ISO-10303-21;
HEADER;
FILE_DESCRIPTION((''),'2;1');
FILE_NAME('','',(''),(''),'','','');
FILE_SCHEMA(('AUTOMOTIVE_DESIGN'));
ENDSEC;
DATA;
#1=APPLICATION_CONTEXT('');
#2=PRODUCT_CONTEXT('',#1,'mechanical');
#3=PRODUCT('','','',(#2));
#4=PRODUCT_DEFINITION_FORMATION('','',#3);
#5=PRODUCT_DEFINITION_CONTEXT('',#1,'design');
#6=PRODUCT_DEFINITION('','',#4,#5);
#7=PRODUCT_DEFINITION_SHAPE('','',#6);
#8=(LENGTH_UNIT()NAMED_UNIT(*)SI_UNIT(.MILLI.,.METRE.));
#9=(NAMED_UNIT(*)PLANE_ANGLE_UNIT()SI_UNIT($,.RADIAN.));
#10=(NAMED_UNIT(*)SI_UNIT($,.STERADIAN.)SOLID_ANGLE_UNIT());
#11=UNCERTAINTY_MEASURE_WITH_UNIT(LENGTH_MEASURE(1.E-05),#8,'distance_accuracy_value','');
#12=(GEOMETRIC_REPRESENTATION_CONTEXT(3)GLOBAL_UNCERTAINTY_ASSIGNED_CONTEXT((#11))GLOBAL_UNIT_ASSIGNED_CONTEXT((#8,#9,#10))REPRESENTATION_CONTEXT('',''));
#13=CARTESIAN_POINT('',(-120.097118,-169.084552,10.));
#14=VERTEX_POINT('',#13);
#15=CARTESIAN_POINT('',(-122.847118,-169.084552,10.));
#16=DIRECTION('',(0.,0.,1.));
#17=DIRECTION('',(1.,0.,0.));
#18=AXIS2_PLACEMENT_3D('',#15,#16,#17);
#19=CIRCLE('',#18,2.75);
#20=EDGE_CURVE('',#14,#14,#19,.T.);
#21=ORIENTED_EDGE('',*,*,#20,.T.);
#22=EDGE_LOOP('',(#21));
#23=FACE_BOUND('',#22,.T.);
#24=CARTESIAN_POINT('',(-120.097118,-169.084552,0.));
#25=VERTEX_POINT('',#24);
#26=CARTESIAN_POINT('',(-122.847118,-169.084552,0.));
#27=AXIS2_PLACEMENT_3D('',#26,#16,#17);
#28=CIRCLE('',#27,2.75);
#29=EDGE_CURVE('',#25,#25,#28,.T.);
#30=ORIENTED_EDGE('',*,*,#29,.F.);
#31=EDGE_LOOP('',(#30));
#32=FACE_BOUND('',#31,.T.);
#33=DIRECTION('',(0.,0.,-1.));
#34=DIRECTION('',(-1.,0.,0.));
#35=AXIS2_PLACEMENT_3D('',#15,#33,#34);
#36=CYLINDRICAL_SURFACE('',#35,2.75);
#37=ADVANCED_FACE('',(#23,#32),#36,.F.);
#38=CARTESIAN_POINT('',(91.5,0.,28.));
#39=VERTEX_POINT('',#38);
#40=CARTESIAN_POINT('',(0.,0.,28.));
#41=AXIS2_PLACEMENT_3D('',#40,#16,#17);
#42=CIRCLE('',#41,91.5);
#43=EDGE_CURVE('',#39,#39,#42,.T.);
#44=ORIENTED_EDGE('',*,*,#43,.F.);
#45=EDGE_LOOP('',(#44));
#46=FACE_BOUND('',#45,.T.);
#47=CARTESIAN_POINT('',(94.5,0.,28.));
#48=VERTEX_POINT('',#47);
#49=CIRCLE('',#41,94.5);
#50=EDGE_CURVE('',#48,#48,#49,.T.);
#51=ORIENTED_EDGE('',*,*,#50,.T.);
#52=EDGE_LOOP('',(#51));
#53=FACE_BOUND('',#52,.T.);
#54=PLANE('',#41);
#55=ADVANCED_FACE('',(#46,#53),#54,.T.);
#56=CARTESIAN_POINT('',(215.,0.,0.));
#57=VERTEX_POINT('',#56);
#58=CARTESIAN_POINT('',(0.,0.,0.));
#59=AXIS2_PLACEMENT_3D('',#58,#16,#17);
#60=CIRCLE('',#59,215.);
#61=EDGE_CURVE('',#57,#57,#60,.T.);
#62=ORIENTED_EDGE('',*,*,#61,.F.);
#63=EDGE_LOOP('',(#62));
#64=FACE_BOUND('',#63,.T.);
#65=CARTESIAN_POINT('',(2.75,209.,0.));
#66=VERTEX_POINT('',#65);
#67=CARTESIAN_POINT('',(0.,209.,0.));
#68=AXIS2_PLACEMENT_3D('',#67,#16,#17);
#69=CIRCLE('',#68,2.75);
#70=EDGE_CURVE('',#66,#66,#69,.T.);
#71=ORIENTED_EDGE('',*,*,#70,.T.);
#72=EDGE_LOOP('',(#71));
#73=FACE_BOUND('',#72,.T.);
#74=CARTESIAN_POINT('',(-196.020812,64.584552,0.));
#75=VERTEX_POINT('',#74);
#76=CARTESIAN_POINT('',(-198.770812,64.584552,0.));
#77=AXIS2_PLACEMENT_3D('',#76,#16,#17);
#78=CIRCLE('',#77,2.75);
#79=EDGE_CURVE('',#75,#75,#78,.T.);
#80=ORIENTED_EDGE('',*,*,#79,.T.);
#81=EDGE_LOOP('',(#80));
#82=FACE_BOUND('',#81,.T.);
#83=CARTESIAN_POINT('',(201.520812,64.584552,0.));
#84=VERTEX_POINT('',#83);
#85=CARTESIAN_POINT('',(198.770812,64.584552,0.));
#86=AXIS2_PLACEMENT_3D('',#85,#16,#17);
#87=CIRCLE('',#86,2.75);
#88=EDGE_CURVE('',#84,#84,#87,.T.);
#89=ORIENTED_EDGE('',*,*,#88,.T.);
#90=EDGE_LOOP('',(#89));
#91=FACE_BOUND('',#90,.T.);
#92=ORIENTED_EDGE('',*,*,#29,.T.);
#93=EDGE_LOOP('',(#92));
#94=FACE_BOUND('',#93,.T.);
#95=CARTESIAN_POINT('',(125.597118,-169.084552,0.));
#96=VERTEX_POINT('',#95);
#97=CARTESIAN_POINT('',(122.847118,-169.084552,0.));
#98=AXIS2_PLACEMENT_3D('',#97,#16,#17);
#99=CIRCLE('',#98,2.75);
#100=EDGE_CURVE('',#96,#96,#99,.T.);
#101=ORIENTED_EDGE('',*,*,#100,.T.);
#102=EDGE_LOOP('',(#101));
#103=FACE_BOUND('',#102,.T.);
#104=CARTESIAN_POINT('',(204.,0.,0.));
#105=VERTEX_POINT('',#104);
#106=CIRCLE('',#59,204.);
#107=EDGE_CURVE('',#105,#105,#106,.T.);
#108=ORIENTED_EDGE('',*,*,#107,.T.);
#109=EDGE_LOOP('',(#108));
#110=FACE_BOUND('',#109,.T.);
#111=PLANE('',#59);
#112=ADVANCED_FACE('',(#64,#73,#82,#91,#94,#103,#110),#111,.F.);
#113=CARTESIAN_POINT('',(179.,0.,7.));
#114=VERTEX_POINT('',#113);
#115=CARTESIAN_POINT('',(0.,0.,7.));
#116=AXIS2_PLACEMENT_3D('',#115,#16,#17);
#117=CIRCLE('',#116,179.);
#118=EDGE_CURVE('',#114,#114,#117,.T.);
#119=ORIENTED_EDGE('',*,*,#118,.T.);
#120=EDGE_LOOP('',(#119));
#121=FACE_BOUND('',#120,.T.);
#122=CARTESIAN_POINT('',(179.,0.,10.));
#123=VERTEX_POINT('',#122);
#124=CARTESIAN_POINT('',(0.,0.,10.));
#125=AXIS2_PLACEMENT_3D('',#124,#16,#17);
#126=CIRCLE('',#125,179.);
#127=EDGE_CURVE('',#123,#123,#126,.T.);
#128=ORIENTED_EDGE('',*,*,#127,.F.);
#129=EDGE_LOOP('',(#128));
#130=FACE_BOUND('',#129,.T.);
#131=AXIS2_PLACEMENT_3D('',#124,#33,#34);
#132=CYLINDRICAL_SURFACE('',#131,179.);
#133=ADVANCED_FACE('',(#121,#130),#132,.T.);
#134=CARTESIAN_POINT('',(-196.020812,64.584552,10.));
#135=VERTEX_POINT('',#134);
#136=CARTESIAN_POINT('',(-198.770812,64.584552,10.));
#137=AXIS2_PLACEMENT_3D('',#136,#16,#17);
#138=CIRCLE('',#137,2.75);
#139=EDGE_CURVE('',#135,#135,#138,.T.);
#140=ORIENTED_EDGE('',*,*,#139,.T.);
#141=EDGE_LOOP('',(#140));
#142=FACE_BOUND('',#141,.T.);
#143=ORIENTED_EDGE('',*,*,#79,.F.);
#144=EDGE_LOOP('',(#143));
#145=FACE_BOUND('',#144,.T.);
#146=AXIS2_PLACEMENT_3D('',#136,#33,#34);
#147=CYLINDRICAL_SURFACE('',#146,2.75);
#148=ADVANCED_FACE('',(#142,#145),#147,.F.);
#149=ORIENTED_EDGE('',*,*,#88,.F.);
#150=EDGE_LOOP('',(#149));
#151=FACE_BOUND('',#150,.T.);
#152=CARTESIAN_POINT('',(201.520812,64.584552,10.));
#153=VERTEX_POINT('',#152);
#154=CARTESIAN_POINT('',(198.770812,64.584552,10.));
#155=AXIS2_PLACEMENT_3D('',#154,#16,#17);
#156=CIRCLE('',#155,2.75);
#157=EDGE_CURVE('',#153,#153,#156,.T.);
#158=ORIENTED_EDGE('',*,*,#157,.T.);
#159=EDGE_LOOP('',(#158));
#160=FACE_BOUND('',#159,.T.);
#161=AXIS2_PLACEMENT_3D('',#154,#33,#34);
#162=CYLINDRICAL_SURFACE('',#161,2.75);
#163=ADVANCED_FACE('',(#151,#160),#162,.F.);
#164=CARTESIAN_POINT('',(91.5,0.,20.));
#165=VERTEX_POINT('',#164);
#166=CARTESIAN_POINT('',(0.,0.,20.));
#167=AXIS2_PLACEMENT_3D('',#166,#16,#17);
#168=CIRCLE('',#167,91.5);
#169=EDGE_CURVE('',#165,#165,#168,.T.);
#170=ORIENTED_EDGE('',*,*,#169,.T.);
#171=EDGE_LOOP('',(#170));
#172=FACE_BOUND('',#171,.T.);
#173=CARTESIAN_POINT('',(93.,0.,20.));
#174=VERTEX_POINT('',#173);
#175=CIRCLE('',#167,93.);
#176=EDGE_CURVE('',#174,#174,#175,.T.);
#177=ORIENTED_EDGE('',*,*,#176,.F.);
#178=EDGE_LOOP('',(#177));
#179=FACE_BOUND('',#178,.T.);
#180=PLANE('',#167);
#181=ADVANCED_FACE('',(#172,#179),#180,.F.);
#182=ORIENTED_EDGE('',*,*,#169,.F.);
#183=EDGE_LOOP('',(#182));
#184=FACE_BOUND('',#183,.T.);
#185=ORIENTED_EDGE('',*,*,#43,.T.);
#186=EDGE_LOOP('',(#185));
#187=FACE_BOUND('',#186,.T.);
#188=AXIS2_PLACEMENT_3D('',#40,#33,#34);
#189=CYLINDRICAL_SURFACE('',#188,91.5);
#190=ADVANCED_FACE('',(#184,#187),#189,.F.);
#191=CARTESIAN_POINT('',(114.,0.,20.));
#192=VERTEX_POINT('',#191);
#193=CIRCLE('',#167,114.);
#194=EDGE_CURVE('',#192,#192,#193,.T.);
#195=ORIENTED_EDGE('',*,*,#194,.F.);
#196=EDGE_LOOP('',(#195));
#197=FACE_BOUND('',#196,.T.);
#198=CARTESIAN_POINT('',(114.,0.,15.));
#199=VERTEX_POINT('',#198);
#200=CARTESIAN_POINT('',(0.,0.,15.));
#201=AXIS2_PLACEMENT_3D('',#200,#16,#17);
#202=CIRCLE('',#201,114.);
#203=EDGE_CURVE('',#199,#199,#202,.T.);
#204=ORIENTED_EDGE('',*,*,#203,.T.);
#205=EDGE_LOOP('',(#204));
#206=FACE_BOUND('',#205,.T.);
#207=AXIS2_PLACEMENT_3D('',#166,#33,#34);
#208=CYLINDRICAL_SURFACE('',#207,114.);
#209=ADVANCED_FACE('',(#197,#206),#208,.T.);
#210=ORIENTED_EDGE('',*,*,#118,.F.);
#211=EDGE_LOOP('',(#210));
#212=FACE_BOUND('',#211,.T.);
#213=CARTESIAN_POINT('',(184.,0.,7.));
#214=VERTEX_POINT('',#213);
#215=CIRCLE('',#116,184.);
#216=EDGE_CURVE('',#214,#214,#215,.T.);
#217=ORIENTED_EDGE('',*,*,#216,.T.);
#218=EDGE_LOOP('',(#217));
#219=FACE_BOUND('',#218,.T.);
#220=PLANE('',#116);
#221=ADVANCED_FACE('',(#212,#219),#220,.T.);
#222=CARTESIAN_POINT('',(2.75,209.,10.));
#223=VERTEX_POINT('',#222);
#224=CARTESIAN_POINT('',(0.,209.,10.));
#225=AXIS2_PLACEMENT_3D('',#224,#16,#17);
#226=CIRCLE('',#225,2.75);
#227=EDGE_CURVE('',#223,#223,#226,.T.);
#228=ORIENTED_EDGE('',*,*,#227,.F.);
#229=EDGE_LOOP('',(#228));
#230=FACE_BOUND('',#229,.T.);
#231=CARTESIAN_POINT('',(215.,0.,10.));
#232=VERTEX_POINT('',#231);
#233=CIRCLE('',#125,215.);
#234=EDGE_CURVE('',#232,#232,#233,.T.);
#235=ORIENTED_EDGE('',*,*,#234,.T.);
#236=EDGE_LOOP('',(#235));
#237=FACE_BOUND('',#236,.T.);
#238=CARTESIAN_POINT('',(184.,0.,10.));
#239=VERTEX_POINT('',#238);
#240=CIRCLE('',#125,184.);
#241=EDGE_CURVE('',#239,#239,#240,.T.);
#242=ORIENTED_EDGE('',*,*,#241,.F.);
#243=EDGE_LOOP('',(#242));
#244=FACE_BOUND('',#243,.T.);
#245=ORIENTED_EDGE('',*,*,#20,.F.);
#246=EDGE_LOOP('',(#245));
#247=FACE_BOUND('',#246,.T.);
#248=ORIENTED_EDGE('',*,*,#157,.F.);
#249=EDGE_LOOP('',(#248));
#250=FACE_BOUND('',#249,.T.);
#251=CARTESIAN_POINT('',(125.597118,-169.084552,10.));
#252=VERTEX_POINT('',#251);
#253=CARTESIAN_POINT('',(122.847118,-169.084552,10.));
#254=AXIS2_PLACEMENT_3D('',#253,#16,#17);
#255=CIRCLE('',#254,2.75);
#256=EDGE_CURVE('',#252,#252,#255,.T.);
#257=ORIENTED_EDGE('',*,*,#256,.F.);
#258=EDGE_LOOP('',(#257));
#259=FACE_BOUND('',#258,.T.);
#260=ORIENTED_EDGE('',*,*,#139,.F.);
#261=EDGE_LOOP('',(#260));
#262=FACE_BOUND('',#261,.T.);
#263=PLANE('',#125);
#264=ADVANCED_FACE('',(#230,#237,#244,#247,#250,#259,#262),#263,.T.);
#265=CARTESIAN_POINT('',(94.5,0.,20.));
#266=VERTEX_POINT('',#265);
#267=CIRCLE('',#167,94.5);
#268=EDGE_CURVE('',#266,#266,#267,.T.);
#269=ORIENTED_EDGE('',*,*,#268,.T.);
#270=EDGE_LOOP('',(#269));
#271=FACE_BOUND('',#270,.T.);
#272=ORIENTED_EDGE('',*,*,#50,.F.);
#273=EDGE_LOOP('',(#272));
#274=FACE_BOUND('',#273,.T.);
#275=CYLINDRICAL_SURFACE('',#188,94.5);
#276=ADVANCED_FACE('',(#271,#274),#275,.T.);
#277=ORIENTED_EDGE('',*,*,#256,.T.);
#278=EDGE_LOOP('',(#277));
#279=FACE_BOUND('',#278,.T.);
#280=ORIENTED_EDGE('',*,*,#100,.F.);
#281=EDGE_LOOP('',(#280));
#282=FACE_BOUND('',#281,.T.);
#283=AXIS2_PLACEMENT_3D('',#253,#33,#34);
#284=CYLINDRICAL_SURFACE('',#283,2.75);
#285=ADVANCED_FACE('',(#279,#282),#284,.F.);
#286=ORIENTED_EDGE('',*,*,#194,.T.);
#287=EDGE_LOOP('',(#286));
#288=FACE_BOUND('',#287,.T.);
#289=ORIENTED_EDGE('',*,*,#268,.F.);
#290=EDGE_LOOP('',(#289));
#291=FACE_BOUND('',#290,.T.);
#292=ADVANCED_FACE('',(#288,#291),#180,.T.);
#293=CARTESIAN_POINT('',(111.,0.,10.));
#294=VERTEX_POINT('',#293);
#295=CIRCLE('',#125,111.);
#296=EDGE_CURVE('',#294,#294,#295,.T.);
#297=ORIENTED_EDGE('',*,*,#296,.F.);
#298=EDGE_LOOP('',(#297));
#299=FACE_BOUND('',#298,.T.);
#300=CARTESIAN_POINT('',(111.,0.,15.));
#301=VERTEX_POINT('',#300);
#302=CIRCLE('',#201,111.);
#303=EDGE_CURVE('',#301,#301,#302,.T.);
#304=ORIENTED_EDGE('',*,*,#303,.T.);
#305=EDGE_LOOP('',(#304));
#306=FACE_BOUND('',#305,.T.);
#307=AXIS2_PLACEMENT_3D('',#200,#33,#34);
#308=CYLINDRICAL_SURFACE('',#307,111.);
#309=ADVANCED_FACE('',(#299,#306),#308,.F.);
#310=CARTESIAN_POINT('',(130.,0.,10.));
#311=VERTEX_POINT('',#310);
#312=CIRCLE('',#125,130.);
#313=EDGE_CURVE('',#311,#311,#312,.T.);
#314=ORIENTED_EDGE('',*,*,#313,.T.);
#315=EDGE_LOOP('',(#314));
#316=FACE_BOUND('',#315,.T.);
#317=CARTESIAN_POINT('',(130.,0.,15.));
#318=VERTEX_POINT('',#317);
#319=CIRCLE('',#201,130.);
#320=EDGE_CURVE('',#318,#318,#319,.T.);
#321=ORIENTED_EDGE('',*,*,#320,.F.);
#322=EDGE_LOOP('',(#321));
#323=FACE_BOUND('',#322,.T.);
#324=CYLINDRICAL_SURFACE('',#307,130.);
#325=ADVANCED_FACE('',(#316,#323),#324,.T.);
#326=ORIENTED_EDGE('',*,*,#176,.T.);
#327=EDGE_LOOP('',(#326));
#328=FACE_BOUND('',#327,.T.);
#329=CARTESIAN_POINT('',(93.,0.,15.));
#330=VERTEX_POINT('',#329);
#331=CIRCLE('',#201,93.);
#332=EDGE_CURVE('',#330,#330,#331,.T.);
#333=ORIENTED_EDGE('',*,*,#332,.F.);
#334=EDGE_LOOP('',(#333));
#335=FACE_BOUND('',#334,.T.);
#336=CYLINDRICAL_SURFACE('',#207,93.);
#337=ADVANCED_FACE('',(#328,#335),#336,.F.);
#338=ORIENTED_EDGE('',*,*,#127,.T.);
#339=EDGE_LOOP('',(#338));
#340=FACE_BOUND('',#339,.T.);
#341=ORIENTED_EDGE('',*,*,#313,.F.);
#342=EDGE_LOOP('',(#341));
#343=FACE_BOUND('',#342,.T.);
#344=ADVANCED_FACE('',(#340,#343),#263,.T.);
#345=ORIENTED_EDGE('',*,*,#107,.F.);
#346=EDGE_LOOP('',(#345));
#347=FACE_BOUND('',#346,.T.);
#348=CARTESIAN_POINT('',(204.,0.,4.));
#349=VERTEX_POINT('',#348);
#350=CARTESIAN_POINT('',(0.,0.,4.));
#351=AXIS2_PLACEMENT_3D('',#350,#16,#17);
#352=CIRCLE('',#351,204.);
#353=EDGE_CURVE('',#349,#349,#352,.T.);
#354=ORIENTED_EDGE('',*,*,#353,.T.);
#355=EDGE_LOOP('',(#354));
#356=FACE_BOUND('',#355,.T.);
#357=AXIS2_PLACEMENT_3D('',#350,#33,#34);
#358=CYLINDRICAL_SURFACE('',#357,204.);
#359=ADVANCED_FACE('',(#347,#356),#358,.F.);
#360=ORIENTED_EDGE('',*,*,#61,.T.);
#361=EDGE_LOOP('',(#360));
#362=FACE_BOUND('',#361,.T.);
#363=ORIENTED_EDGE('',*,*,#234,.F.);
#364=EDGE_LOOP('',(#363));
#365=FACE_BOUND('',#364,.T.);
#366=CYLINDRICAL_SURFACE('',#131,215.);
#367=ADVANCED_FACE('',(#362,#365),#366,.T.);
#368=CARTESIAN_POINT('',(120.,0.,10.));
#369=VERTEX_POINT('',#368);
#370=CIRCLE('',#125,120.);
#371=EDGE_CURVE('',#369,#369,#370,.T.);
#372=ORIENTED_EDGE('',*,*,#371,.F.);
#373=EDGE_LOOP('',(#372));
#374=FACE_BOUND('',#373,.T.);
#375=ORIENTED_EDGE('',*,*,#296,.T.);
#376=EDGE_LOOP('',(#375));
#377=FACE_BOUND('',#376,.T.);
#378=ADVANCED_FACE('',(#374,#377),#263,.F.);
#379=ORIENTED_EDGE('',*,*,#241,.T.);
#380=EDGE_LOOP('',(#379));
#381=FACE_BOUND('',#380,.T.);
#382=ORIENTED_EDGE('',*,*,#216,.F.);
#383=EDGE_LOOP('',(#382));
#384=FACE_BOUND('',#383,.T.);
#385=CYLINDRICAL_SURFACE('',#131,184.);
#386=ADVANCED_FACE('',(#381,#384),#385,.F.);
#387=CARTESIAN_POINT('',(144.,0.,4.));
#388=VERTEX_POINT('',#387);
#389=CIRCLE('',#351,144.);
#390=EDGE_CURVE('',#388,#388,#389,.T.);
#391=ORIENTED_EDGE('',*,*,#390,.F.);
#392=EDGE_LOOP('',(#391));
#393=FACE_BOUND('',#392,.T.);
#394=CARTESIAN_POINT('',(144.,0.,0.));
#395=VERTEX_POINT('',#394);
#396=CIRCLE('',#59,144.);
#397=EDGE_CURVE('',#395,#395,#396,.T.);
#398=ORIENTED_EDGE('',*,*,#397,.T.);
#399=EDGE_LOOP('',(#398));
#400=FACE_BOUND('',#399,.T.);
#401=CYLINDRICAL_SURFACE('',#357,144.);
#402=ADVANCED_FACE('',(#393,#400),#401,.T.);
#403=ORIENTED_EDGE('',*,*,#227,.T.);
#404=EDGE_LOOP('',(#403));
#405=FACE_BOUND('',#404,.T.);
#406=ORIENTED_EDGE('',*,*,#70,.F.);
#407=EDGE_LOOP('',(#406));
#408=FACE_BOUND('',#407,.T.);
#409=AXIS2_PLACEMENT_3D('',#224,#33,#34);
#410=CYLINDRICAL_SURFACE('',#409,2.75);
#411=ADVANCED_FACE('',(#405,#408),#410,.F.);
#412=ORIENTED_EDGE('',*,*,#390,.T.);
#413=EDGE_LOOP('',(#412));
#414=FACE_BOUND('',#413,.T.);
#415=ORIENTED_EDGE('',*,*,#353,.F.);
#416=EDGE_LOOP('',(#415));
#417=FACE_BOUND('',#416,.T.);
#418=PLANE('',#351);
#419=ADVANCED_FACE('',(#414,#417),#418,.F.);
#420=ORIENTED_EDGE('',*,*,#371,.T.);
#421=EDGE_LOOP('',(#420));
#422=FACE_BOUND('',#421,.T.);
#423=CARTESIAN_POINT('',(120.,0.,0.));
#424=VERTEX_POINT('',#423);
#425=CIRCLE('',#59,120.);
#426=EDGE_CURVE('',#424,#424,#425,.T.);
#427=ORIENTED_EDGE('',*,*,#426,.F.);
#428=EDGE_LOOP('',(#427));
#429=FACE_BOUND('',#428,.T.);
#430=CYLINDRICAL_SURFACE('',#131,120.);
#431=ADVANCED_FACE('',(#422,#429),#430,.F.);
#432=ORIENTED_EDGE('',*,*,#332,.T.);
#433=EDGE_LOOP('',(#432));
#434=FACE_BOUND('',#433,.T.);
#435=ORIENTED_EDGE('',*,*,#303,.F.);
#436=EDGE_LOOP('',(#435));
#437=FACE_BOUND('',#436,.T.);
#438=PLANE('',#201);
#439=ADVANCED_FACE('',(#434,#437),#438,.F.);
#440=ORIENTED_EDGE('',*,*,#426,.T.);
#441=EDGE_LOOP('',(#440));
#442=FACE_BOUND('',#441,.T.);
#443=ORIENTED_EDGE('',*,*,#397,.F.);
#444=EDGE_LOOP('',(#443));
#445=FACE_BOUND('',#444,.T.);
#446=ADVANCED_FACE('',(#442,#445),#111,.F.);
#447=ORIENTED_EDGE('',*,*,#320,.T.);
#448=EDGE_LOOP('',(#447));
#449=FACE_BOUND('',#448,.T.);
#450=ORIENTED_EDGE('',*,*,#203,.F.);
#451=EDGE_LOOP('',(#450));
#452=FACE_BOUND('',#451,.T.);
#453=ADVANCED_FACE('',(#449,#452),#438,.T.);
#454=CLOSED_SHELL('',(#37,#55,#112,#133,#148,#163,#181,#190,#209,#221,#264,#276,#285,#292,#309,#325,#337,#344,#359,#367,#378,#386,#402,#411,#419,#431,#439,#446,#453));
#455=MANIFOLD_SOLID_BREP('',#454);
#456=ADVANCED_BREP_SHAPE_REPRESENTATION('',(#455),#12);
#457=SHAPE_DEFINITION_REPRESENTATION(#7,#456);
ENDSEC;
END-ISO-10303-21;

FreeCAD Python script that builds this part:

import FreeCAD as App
import Part
import Sketcher

V = App.Vector

doc = App.newDocument("Part")
body = doc.addObject("PartDesign::Body", "Body")

sketch1 = body.newObject("Sketcher::SketchObject", "Sketch")
sketch1.AttachmentSupport = (doc.getObject("XY_Plane"), [""])
sketch1.MapMode = "FlatFace"
sketch1.addGeometry([
    Part.Circle(V(0, 0, 0), V(0, 0, 1), 215),
    Part.Circle(V(0, 0, 0), V(0, 0, 1), 120),
], False)
sketch1.addConstraint([
    Sketcher.Constraint("Coincident", 0, 3, -1, 1),
    Sketcher.Constraint("Coincident", 1, 3, -1, 1),
    Sketcher.Constraint("Diameter", 0, 430.0),
    Sketcher.Constraint("Diameter", 1, 240.0),
])
pad1 = body.newObject("PartDesign::Pad", "Pad")
pad1.Profile = sketch1
pad1.Length = 10

sketch2 = body.newObject("Sketcher::SketchObject", "Sketch001")
sketch2.AttachmentSupport = (doc.getObject("XY_Plane"), [""])
sketch2.MapMode = "FlatFace"
sketch2.AttachmentOffset = App.Placement(V(0, 0, 10), App.Rotation())
sketch2.addGeometry([
    Part.Circle(V(0, 0, 0), V(0, 0, 1), 130),
    Part.Circle(V(0, 0, 0), V(0, 0, 1), 111),
], False)
sketch2.addConstraint([
    Sketcher.Constraint("Coincident", 0, 3, -1, 1),
    Sketcher.Constraint("Coincident", 1, 3, -1, 1),
    Sketcher.Constraint("Diameter", 0, 260.0),
    Sketcher.Constraint("Diameter", 1, 222.0),
])
pad2 = body.newObject("PartDesign::Pad", "Pad001")
pad2.Profile = sketch2
pad2.Length = 5

sketch3 = body.newObject("Sketcher::SketchObject", "Sketch002")
sketch3.AttachmentSupport = (doc.getObject("XY_Plane"), [""])
sketch3.MapMode = "FlatFace"
sketch3.AttachmentOffset = App.Placement(V(0, 0, 15), App.Rotation())
sketch3.addGeometry([
    Part.Circle(V(0, 0, 0), V(0, 0, 1), 114),
    Part.Circle(V(0, 0, 0), V(0, 0, 1), 93),
], False)
sketch3.addConstraint([
    Sketcher.Constraint("Coincident", 0, 3, -1, 1),
    Sketcher.Constraint("Coincident", 1, 3, -1, 1),
    Sketcher.Constraint("Diameter", 0, 228.0),
    Sketcher.Constraint("Diameter", 1, 186.0),
])
pad3 = body.newObject("PartDesign::Pad", "Pad002")
pad3.Profile = sketch3
pad3.Length = 5

sketch4 = body.newObject("Sketcher::SketchObject", "Sketch003")
sketch4.AttachmentSupport = (doc.getObject("XY_Plane"), [""])
sketch4.MapMode = "FlatFace"
sketch4.AttachmentOffset = App.Placement(V(0, 0, 20), App.Rotation())
sketch4.addGeometry([
    Part.Circle(V(0, 0, 0), V(0, 0, 1), 94.5),
    Part.Circle(V(0, 0, 0), V(0, 0, 1), 91.5),
], False)
sketch4.addConstraint([
    Sketcher.Constraint("Coincident", 0, 3, -1, 1),
    Sketcher.Constraint("Coincident", 1, 3, -1, 1),
    Sketcher.Constraint("Diameter", 0, 189.0),
    Sketcher.Constraint("Diameter", 1, 183.0),
])
pad4 = body.newObject("PartDesign::Pad", "Pad003")
pad4.Profile = sketch4
pad4.Length = 8

sketch5 = body.newObject("Sketcher::SketchObject", "Sketch004")
sketch5.AttachmentSupport = (doc.getObject("XY_Plane"), [""])
sketch5.MapMode = "FlatFace"
sketch5.addGeometry([
    Part.Circle(V(0, 0, 0), V(0, 0, 1), 204),
    Part.Circle(V(0, 0, 0), V(0, 0, 1), 144),
], False)
sketch5.addConstraint([
    Sketcher.Constraint("Coincident", 0, 3, -1, 1),
    Sketcher.Constraint("Coincident", 1, 3, -1, 1),
    Sketcher.Constraint("Diameter", 0, 408.0),
    Sketcher.Constraint("Diameter", 1, 288.0),
])
pocket1 = body.newObject("PartDesign::Pocket", "Pocket")
pocket1.Profile = sketch5
pocket1.Length = 4
pocket1.Reversed = True

sketch6 = body.newObject("Sketcher::SketchObject", "Sketch005")
sketch6.AttachmentSupport = (doc.getObject("XY_Plane"), [""])
sketch6.MapMode = "FlatFace"
sketch6.AttachmentOffset = App.Placement(V(0, 0, 7), App.Rotation())
sketch6.addGeometry([
    Part.Circle(V(0, 0, 0), V(0, 0, 1), 184),
    Part.Circle(V(0, 0, 0), V(0, 0, 1), 179),
], False)
sketch6.addConstraint([
    Sketcher.Constraint("Coincident", 0, 3, -1, 1),
    Sketcher.Constraint("Coincident", 1, 3, -1, 1),
    Sketcher.Constraint("Diameter", 0, 368.0),
    Sketcher.Constraint("Diameter", 1, 358.0),
])
pocket2 = body.newObject("PartDesign::Pocket", "Pocket001")
pocket2.Profile = sketch6
pocket2.Length = 3
pocket2.Reversed = True

sketch7 = body.newObject("Sketcher::SketchObject", "Sketch006")
sketch7.AttachmentSupport = (doc.getObject("XY_Plane"), [""])
sketch7.MapMode = "FlatFace"
sketch7.addGeometry([
    Part.Circle(V(198.770812, 64.584552, 0), V(0, 0, 1), 2.75),
    Part.Circle(V(0, 209, 0), V(0, 0, 1), 2.75),
    Part.Circle(V(-198.770812, 64.584552, 0), V(0, 0, 1), 2.75),
    Part.Circle(V(-122.847118, -169.084552, 0), V(0, 0, 1), 2.75),
    Part.Circle(V(122.847118, -169.084552, 0), V(0, 0, 1), 2.75),
], False)
sketch7.addConstraint([
    Sketcher.Constraint("Equal", 0, 1),
    Sketcher.Constraint("Equal", 1, 2),
    Sketcher.Constraint("Equal", 2, 3),
    Sketcher.Constraint("Equal", 3, 4),
    Sketcher.Constraint("Symmetric", 0, 3, 2, 3, -2),
    Sketcher.Constraint("Symmetric", 3, 3, 4, 3, -2),
    Sketcher.Constraint("PointOnObject", 1, 3, -2),
    Sketcher.Constraint("Diameter", 0, 5.5),
    Sketcher.Constraint("DistanceY", -1, 1, 1, 3, 209.0),
    Sketcher.Constraint("DistanceX", -1, 1, 0, 3, 198.770812),
    Sketcher.Constraint("DistanceY", -1, 1, 0, 3, 64.584552),
    Sketcher.Constraint("DistanceY", 3, 3, -1, 1, 169.084552),
    Sketcher.Constraint("DistanceX", 3, 3, 0, 3, 321.61793),
])
pocket3 = body.newObject("PartDesign::Pocket", "Pocket002")
pocket3.Profile = sketch7
pocket3.Length = 10
pocket3.Reversed = True

doc.recompute()
